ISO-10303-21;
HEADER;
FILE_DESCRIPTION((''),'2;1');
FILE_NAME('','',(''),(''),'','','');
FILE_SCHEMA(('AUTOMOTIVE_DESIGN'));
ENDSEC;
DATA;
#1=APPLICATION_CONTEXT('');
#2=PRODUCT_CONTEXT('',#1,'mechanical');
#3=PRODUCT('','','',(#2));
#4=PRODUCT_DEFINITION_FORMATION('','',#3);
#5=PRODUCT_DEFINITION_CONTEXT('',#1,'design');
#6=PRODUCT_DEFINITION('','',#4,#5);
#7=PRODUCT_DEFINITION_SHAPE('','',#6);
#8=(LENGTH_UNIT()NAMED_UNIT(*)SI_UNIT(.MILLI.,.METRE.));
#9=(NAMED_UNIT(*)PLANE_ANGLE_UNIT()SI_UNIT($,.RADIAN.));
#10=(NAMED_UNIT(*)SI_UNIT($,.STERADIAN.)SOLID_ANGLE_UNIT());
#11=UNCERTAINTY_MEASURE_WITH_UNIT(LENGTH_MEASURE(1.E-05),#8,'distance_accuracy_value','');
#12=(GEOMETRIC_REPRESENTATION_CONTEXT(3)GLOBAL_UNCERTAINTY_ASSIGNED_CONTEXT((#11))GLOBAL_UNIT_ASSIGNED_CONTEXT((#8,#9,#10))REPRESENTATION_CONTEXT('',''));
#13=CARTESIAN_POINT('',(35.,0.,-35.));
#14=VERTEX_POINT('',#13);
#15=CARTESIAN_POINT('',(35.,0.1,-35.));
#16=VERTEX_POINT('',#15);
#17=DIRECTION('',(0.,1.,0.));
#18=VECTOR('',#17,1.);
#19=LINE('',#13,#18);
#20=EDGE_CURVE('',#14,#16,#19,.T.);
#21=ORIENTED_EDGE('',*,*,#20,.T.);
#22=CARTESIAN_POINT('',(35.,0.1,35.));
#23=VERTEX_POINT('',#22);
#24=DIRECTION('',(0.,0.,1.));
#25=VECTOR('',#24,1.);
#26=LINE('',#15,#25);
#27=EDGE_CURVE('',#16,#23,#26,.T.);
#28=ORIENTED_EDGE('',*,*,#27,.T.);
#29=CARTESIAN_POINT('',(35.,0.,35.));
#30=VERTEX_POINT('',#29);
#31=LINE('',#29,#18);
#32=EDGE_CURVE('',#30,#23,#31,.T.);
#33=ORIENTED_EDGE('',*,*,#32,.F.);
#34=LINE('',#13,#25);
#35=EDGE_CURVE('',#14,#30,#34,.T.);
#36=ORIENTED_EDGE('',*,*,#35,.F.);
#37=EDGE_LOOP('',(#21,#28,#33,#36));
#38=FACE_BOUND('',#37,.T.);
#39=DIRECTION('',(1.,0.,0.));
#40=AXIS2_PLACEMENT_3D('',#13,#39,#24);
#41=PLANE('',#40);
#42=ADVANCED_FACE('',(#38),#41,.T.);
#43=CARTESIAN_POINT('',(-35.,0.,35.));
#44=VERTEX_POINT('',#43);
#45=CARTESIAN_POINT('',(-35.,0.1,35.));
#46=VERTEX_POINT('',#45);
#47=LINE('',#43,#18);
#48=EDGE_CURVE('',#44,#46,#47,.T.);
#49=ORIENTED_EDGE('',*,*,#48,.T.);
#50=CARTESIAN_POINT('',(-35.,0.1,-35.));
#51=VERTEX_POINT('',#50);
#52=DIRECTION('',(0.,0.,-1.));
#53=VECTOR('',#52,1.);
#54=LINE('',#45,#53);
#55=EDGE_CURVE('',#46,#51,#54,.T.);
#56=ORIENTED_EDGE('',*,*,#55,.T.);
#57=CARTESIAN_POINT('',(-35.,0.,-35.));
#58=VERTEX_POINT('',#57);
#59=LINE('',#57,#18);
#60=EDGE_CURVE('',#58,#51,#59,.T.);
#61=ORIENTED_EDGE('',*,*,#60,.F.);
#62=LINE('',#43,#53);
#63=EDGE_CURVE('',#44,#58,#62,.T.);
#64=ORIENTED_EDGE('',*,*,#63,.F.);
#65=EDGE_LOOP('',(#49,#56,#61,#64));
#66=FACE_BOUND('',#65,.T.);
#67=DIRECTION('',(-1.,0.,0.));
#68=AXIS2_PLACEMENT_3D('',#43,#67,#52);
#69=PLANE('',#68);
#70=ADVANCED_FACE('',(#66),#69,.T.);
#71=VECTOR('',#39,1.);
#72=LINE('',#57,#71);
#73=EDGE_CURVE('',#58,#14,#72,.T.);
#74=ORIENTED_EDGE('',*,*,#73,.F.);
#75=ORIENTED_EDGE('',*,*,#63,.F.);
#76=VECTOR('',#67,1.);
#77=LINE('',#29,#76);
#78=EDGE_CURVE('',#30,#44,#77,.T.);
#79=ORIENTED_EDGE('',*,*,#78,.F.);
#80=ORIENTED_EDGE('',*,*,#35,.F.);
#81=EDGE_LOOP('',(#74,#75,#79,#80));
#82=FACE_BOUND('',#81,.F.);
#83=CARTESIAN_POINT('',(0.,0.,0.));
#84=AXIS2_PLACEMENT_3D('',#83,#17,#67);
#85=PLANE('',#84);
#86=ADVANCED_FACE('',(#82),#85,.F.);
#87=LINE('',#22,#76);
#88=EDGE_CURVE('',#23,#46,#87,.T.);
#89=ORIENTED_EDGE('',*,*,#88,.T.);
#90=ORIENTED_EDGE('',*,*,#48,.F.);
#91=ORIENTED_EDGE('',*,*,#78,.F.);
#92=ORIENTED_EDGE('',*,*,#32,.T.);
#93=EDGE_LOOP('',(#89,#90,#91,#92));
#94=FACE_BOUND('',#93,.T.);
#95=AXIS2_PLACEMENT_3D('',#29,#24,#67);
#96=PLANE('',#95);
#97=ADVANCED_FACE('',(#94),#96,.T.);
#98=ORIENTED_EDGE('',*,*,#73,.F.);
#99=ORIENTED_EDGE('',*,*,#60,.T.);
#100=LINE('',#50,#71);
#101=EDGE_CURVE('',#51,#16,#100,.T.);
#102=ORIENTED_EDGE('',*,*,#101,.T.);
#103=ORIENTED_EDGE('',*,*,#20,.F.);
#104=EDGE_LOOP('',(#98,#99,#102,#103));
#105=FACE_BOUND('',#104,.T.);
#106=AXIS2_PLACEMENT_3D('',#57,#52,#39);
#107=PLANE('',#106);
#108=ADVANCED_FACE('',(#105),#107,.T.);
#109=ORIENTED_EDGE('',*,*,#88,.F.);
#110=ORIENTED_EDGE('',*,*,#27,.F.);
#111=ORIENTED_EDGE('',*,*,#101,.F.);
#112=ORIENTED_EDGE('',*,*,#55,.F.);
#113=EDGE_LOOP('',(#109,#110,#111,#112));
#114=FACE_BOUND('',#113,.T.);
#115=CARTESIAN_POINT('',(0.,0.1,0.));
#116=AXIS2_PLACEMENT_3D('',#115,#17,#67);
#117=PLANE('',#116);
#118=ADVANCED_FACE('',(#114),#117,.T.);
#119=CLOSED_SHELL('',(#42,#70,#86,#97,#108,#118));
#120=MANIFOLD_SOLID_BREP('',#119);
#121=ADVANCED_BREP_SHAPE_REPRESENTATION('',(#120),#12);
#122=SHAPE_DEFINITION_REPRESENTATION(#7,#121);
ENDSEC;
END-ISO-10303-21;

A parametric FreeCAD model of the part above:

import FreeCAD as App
import Part
import Sketcher

V = App.Vector
Q = App.Units.Quantity

doc = App.newDocument("Part")
body = doc.addObject("PartDesign::Body", "Body")

# Sketch on XZ plane
sketch1 = body.newObject("Sketcher::SketchObject", "Sketch")
sketch1.AttachmentSupport = (doc.getObject("XZ_Plane"), [""])
sketch1.MapMode = "FlatFace"
sketch1.addGeometry(Part.LineSegment(V(-35, 35, 0), V(35, 35, 0)), False)
sketch1.addGeometry(Part.LineSegment(V(35, 35, 0), V(35, -35, 0)), False)
sketch1.addGeometry(Part.LineSegment(V(35, -35, 0), V(-35, -35, 0)), False)
sketch1.addGeometry(Part.LineSegment(V(-35, -35, 0), V(-35, 35, 0)), False)
sketch1.addConstraint(Sketcher.Constraint("Coincident", 0, 2, 1, 1))
sketch1.addConstraint(Sketcher.Constraint("Coincident", 1, 2, 2, 1))
sketch1.addConstraint(Sketcher.Constraint("Coincident", 2, 2, 3, 1))
sketch1.addConstraint(Sketcher.Constraint("Coincident", 3, 2, 0, 1))
sketch1.addConstraint(Sketcher.Constraint("Horizontal", 0))
sketch1.addConstraint(Sketcher.Constraint("Vertical", 1))
sketch1.addConstraint(Sketcher.Constraint("Horizontal", 2))
sketch1.addConstraint(Sketcher.Constraint("Vertical", 3))
sketch1.addConstraint(Sketcher.Constraint("Symmetric", 0, 2, 2, 2, -1, 1))
sketch1.addConstraint(Sketcher.Constraint("Equal", 2, 1))
sketch1.addConstraint(Sketcher.Constraint("DistanceX", 0, 1, 0, 2, Q("70 mm")))
pad1 = body.newObject("PartDesign::Pad", "Pad")
pad1.Profile = sketch1
pad1.Length = 0.1
pad1.Reversed = True

doc.recompute()
